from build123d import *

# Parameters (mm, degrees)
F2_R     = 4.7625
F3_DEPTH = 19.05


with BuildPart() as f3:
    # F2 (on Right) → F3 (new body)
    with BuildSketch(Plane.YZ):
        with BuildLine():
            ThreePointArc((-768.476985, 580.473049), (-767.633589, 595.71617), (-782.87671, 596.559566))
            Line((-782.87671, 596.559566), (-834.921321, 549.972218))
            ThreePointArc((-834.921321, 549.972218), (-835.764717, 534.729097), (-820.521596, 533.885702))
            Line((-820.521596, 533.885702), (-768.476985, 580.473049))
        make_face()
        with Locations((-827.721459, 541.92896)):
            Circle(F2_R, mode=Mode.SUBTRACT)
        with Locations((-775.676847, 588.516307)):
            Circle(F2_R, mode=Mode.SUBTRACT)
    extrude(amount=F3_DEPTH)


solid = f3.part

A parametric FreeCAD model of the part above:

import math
import FreeCAD as App
import Part
import Sketcher

V = App.Vector
Q = App.Units.Quantity

doc = App.newDocument("Part")
body = doc.addObject("PartDesign::Body", "Body")

# Sketch on YZ plane
sketch1 = body.newObject("Sketcher::SketchObject", "Sketch")
sketch1.AttachmentSupport = (doc.getObject("YZ_Plane"), [""])
sketch1.MapMode = "FlatFace"
sketch1.addGeometry([
    Part.ArcOfCircle(Part.Circle(V(-775.7, 588.5, 0), V(0, 0, 1), 10.8), math.radians(-48), math.radians(132)),  # 0
    Part.LineSegment(V(-782.9, 596.6, 0), V(-834.9, 550, 0)),  # 1
    Part.ArcOfCircle(Part.Circle(V(-827.7, 541.9, 0), V(0, 0, 1), 10.8), math.radians(132), math.radians(312)),  # 2
    Part.LineSegment(V(-820.5, 533.9, 0), V(-768.5, 580.5, 0)),  # 3
    Part.Circle(V(-827.7, 541.9, 0), V(0, 0, 1), 4.8),  # 4
    Part.Circle(V(-775.7, 588.5, 0), V(0, 0, 1), 4.8),  # 5
], False)
sketch1.addConstraint([
    Sketcher.Constraint("Tangent", 0, 2, 1, 1),
    Sketcher.Constraint("Tangent", 1, 2, 2, 1),
    Sketcher.Constraint("Tangent", 2, 2, 3, 1),
    Sketcher.Constraint("Tangent", 3, 2, 0, 1),
    Sketcher.Constraint("Coincident", 4, 3, 2, 3),
    Sketcher.Constraint("Coincident", 5, 3, 0, 3),
    Sketcher.Constraint("Equal", 0, 2),
    Sketcher.Constraint("Equal", 4, 5),
    Sketcher.Constraint("Diameter", 4, Q("0.375 in")),
    Sketcher.Constraint("Radius", 0, Q("0.425 in")),
    Sketcher.Constraint("Distance", 1, Q("2.75 in")),
    Sketcher.Constraint("DistanceX", 2, 2, -1, 1, Q("32.3039998 in")),
    Sketcher.Constraint("DistanceY", -1, 1, 2, 2, 533.885702),
    Sketcher.Constraint("DistanceX", 2, 3, -1, 1, 827.721459),
])
pad1 = body.newObject("PartDesign::Pad", "Pad")
pad1.Profile = sketch1
pad1.Length = Q("0.75 in")

doc.recompute()
